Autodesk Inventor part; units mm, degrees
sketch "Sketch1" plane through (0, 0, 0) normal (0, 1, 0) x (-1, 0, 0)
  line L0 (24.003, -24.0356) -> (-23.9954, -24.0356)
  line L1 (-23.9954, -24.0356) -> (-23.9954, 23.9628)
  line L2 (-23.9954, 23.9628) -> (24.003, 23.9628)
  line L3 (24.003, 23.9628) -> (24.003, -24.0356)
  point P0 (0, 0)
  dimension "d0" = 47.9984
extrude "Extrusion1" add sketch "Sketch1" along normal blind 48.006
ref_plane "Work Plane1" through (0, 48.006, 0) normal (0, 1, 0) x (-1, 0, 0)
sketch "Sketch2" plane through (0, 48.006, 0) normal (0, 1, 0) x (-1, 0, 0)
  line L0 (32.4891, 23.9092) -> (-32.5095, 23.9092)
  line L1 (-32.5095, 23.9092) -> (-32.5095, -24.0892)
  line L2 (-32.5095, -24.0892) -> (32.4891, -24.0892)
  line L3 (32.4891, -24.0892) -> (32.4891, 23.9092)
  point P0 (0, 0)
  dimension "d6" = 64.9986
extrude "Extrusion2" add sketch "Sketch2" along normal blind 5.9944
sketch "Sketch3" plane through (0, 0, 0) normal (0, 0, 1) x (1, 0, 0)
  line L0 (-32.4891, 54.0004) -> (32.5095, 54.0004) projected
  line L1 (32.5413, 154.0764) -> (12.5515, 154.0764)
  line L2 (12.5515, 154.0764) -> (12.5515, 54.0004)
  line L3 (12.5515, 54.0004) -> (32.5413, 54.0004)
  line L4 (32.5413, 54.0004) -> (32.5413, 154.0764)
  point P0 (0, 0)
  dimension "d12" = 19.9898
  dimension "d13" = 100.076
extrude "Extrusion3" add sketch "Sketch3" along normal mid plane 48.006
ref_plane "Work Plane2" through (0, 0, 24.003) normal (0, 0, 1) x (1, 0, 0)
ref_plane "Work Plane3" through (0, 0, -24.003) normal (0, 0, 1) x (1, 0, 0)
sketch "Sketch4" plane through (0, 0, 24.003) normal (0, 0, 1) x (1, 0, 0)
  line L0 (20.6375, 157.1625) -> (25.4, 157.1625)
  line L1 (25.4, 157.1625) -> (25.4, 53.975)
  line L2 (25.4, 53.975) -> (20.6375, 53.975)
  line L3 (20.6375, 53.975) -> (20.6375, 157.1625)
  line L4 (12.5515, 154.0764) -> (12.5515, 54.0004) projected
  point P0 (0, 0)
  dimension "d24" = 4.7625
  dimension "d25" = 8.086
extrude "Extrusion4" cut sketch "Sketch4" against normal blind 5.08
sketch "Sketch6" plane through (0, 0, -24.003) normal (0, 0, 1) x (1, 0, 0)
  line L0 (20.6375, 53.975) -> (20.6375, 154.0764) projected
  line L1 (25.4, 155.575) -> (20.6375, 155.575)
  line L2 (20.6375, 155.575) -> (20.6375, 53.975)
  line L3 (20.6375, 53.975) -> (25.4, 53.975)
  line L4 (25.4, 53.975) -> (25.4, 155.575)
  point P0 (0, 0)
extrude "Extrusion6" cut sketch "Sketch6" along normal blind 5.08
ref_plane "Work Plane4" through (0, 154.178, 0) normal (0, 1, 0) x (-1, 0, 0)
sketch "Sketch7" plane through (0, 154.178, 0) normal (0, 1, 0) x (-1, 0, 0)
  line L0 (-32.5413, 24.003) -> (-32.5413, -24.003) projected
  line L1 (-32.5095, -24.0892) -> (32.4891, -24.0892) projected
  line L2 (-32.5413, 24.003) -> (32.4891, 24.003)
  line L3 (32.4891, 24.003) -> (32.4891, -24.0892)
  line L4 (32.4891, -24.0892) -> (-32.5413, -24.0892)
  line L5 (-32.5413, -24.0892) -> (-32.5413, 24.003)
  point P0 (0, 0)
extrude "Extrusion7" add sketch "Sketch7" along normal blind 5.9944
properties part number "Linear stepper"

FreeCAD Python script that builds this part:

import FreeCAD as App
import Part
import Sketcher

V = App.Vector
Q = App.Units.Quantity

doc = App.newDocument("Part")
params = doc.addObject("Spreadsheet::Sheet", "Params")
for row, (alias, value) in enumerate([
    ("pad1_length", "1.89 in"),
    ("sketch2_width", "2.559 in"),
    ("pad2_length", "0.236 in"),
    ("sketch3_height", "3.94 in"),
    ("sketch3_width", "0.787 in"),
    ("pad3_length", "1.89 in"),
    ("sketch4_width", "0.1875 in"),
    ("sketch4_height", "4.0625 in"),
    ("pocket1_length", "0.2 in"),
    ("sketch5_height", "4 in"),
    ("sketch5_width", "0.1875 in"),
    ("pocket2_length", "0.2 in"),
    ("pad4_length", "0.236 in"),
], start=1):
    params.set(f"A{row}", alias)
    params.set(f"B{row}", "=" + value)
    params.setAlias(f"B{row}", alias)

body = doc.addObject("PartDesign::Body", "Body")
body.AllowCompound = True

# Sketch on XZ plane
sketch1 = body.newObject("Sketcher::SketchObject", "Sketch")
sketch1.AttachmentSupport = (doc.getObject("XZ_Plane"), [""])
sketch1.MapMode = "FlatFace"
sketch1.addGeometry([
    Part.LineSegment(V(24, -24, 0), V(-24, -24, 0)),
    Part.LineSegment(V(-24, -24, 0), V(-24, 24, 0)),
    Part.LineSegment(V(-24, 24, 0), V(24, 24, 0)),
    Part.LineSegment(V(24, 24, 0), V(24, -24, 0)),
], False)
sketch1.addConstraint([
    Sketcher.Constraint("Coincident", 0, 2, 1, 1),
    Sketcher.Constraint("Coincident", 1, 2, 2, 1),
    Sketcher.Constraint("Coincident", 2, 2, 3, 1),
    Sketcher.Constraint("Coincident", 3, 2, 0, 1),
    Sketcher.Constraint("Horizontal", 0),
    Sketcher.Constraint("Vertical", 1),
    Sketcher.Constraint("Horizontal", 2),
    Sketcher.Constraint("Vertical", 3),
    Sketcher.Constraint("Equal", 2, 1),
    Sketcher.Constraint("DistanceX", 0, 2, 0, 1, Q("1.8897 in")),
    Sketcher.Constraint("DistanceX", 0, 2, -1, 1, Q("0.945 in")),
    Sketcher.Constraint("DistanceY", 0, 2, -1, 1, Q("24.0356 mm")),
])
pad1 = body.newObject("PartDesign::Pad", "Pad")
pad1.Profile = sketch1
pad1.setExpression("Length", "Params.pad1_length")
pad1.Reversed = True

# Sketch on XZ plane
sketch2 = body.newObject("Sketcher::SketchObject", "Sketch001")
sketch2.AttachmentSupport = (doc.getObject("XZ_Plane"), [""])
sketch2.MapMode = "FlatFace"
sketch2.AttachmentOffset = App.Placement(V(0, 0, -1.89 * 25.4), App.Rotation())
sketch2.addGeometry([
    Part.LineSegment(V(-32, -24, 0), V(-32, 24, 0)),
    Part.LineSegment(V(-32, 24, 0), V(33, 24, 0)),
    Part.LineSegment(V(33, 24, 0), V(33, -24, 0)),
    Part.LineSegment(V(33, -24, 0), V(-32, -24, 0)),
], False)
sketch2.addConstraint([
    Sketcher.Constraint("Coincident", 0, 2, 1, 1),
    Sketcher.Constraint("Coincident", 1, 2, 2, 1),
    Sketcher.Constraint("Coincident", 2, 2, 3, 1),
    Sketcher.Constraint("Coincident", 3, 2, 0, 1),
    Sketcher.Constraint("Vertical", 0),
    Sketcher.Constraint("Horizontal", 1),
    Sketcher.Constraint("Vertical", 2),
    Sketcher.Constraint("Horizontal", 3),
    Sketcher.Constraint("DistanceX", 1, 1, 1, 2, Q("2.559 in")),
    Sketcher.Constraint("DistanceY", 0, 1, 0, 2, Q("1.8897 in")),
    Sketcher.Constraint("DistanceX", 0, 2, -1, 1, Q("1.2791 in")),
    Sketcher.Constraint("DistanceY", -1, 1, 0, 2, Q("0.9413 in")),
])
sketch2.setExpression("Constraints[8]", "Params.sketch2_width")
pad2 = body.newObject("PartDesign::Pad", "Pad001")
pad2.Profile = sketch2
pad2.setExpression("Length", "Params.pad2_length")
pad2.Reversed = True

# Sketch on XY plane
sketch3 = body.newObject("Sketcher::SketchObject", "Sketch002")
sketch3.AttachmentSupport = (doc.getObject("XY_Plane"), [""])
sketch3.MapMode = "FlatFace"
sketch3.addGeometry([
    Part.LineSegment(V(13, 154, 0), V(13, 54, 0)),
    Part.LineSegment(V(13, 54, 0), V(33, 54, 0)),
    Part.LineSegment(V(33, 54, 0), V(33, 154, 0)),
    Part.LineSegment(V(33, 154, 0), V(13, 154, 0)),
], False)
sketch3.addConstraint([
    Sketcher.Constraint("Coincident", 0, 2, 1, 1),
    Sketcher.Constraint("Coincident", 1, 2, 2, 1),
    Sketcher.Constraint("Coincident", 2, 2, 3, 1),
    Sketcher.Constraint("Coincident", 3, 2, 0, 1),
    Sketcher.Constraint("Vertical", 0),
    Sketcher.Constraint("Horizontal", 1),
    Sketcher.Constraint("Vertical", 2),
    Sketcher.Constraint("Horizontal", 3),
    Sketcher.Constraint("DistanceY", 0, 2, 0, 1, Q("3.94 in")),
    Sketcher.Constraint("DistanceX", 1, 1, 1, 2, Q("0.787 in")),
    Sketcher.Constraint("DistanceY", -1, 1, 0, 2, Q("2.126 in")),
    Sketcher.Constraint("DistanceX", -1, 1, 0, 2, Q("12.5515 mm")),
])
sketch3.setExpression("Constraints[8]", "Params.sketch3_height")
sketch3.setExpression("Constraints[9]", "Params.sketch3_width")
pad3 = body.newObject("PartDesign::Pad", "Pad002")
pad3.Profile = sketch3
pad3.setExpression("Length", "Params.pad3_length")
pad3.Midplane = True

# Sketch on XY plane
sketch4 = body.newObject("Sketcher::SketchObject", "Sketch003")
sketch4.AttachmentSupport = (doc.getObject("XY_Plane"), [""])
sketch4.MapMode = "FlatFace"
sketch4.AttachmentOffset = App.Placement(V(0, 0, 0.945 * 25.4), App.Rotation())
sketch4.addGeometry([
    Part.LineSegment(V(25.4, 157.2, 0), V(20.6, 157.2, 0)),
    Part.LineSegment(V(20.6, 157.2, 0), V(20.6, 54, 0)),
    Part.LineSegment(V(20.6, 54, 0), V(25.4, 54, 0)),
    Part.LineSegment(V(25.4, 54, 0), V(25.4, 157.2, 0)),
], False)
sketch4.addConstraint([
    Sketcher.Constraint("Coincident", 0, 2, 1, 1),
    Sketcher.Constraint("Coincident", 1, 2, 2, 1),
    Sketcher.Constraint("Coincident", 2, 2, 3, 1),
    Sketcher.Constraint("Coincident", 3, 2, 0, 1),
    Sketcher.Constraint("Horizontal", 0),
    Sketcher.Constraint("Vertical", 1),
    Sketcher.Constraint("Horizontal", 2),
    Sketcher.Constraint("Vertical", 3),
    Sketcher.Constraint("DistanceX", 0, 2, 0, 1, Q("0.1875 in")),
    Sketcher.Constraint("DistanceX", -1, 1, 2, 2, Q("1 in")),
    Sketcher.Constraint("DistanceY", 1, 2, 1, 1, Q("4.0625 in")),
    Sketcher.Constraint("DistanceY", -1, 1, 0, 2, Q("6.1875 in")),
])
sketch4.setExpression("Constraints[8]", "Params.sketch4_width")
sketch4.setExpression("Constraints[10]", "Params.sketch4_height")
pocket1 = body.newObject("PartDesign::Pocket", "Pocket")
pocket1.Profile = sketch4
pocket1.setExpression("Length", "Params.pocket1_length")

# Sketch on XY plane
sketch5 = body.newObject("Sketcher::SketchObject", "Sketch004")
sketch5.AttachmentSupport = (doc.getObject("XY_Plane"), [""])
sketch5.MapMode = "FlatFace"
sketch5.AttachmentOffset = App.Placement(V(0, 0, -0.945 * 25.4), App.Rotation())
sketch5.addGeometry([
    Part.LineSegment(V(20.6, 155.6, 0), V(20.6, 54, 0)),
    Part.LineSegment(V(20.6, 54, 0), V(25.4, 54, 0)),
    Part.LineSegment(V(25.4, 54, 0), V(25.4, 155.6, 0)),
    Part.LineSegment(V(25.4, 155.6, 0), V(20.6, 155.6, 0)),
], False)
sketch5.addConstraint([
    Sketcher.Constraint("Coincident", 0, 2, 1, 1),
    Sketcher.Constraint("Coincident", 1, 2, 2, 1),
    Sketcher.Constraint("Coincident", 2, 2, 3, 1),
    Sketcher.Constraint("Coincident", 3, 2, 0, 1),
    Sketcher.Constraint("Vertical", 0),
    Sketcher.Constraint("Horizontal", 1),
    Sketcher.Constraint("Vertical", 2),
    Sketcher.Constraint("Horizontal", 3),
    Sketcher.Constraint("DistanceY", 0, 2, 0, 1, Q("4 in")),
    Sketcher.Constraint("DistanceX", -1, 1, 1, 2, Q("1 in")),
    Sketcher.Constraint("DistanceX", 1, 1, 1, 2, Q("0.1875 in")),
    Sketcher.Constraint("DistanceY", -1, 1, 0, 2, Q("2.125 in")),
])
sketch5.setExpression("Constraints[8]", "Params.sketch5_height")
sketch5.setExpression("Constraints[10]", "Params.sketch5_width")
pocket2 = body.newObject("PartDesign::Pocket", "Pocket001")
pocket2.Profile = sketch5
pocket2.setExpression("Length", "Params.pocket2_length")
pocket2.Reversed = True

# Sketch on XZ plane
sketch6 = body.newObject("Sketcher::SketchObject", "Sketch005")
sketch6.AttachmentSupport = (doc.getObject("XZ_Plane"), [""])
sketch6.MapMode = "FlatFace"
sketch6.AttachmentOffset = App.Placement(V(0, 0, -6.07 * 25.4), App.Rotation())
sketch6.addGeometry([
    Part.LineSegment(V(-32, 24, 0), V(33, 24, 0)),
    Part.LineSegment(V(33, 24, 0), V(33, -24, 0)),
    Part.LineSegment(V(33, -24, 0), V(-32, -24, 0)),
    Part.LineSegment(V(-32, -24, 0), V(-32, 24, 0)),
], False)
sketch6.addConstraint([
    Sketcher.Constraint("Coincident", 0, 2, 1, 1),
    Sketcher.Constraint("Coincident", 1, 2, 2, 1),
    Sketcher.Constraint("Coincident", 2, 2, 3, 1),
    Sketcher.Constraint("Coincident", 3, 2, 0, 1),
    Sketcher.Constraint("Horizontal", 0),
    Sketcher.Constraint("Vertical", 1),
    Sketcher.Constraint("Horizontal", 2),
    Sketcher.Constraint("Vertical", 3),
    Sketcher.Constraint("DistanceY", 1, 2, 1, 1, Q("1.8934 in")),
    Sketcher.Constraint("DistanceY", -1, 1, 0, 2, Q("0.945 in")),
    Sketcher.Constraint("DistanceX", 0, 1, 0, 2, Q("65.0304 mm")),
    Sketcher.Constraint("DistanceX", 2, 2, -1, 1, Q("1.2791 in")),
])
pad4 = body.newObject("PartDesign::Pad", "Pad003")
pad4.Profile = sketch6
pad4.setExpression("Length", "Params.pad4_length")
pad4.Reversed = True

doc.recompute()
